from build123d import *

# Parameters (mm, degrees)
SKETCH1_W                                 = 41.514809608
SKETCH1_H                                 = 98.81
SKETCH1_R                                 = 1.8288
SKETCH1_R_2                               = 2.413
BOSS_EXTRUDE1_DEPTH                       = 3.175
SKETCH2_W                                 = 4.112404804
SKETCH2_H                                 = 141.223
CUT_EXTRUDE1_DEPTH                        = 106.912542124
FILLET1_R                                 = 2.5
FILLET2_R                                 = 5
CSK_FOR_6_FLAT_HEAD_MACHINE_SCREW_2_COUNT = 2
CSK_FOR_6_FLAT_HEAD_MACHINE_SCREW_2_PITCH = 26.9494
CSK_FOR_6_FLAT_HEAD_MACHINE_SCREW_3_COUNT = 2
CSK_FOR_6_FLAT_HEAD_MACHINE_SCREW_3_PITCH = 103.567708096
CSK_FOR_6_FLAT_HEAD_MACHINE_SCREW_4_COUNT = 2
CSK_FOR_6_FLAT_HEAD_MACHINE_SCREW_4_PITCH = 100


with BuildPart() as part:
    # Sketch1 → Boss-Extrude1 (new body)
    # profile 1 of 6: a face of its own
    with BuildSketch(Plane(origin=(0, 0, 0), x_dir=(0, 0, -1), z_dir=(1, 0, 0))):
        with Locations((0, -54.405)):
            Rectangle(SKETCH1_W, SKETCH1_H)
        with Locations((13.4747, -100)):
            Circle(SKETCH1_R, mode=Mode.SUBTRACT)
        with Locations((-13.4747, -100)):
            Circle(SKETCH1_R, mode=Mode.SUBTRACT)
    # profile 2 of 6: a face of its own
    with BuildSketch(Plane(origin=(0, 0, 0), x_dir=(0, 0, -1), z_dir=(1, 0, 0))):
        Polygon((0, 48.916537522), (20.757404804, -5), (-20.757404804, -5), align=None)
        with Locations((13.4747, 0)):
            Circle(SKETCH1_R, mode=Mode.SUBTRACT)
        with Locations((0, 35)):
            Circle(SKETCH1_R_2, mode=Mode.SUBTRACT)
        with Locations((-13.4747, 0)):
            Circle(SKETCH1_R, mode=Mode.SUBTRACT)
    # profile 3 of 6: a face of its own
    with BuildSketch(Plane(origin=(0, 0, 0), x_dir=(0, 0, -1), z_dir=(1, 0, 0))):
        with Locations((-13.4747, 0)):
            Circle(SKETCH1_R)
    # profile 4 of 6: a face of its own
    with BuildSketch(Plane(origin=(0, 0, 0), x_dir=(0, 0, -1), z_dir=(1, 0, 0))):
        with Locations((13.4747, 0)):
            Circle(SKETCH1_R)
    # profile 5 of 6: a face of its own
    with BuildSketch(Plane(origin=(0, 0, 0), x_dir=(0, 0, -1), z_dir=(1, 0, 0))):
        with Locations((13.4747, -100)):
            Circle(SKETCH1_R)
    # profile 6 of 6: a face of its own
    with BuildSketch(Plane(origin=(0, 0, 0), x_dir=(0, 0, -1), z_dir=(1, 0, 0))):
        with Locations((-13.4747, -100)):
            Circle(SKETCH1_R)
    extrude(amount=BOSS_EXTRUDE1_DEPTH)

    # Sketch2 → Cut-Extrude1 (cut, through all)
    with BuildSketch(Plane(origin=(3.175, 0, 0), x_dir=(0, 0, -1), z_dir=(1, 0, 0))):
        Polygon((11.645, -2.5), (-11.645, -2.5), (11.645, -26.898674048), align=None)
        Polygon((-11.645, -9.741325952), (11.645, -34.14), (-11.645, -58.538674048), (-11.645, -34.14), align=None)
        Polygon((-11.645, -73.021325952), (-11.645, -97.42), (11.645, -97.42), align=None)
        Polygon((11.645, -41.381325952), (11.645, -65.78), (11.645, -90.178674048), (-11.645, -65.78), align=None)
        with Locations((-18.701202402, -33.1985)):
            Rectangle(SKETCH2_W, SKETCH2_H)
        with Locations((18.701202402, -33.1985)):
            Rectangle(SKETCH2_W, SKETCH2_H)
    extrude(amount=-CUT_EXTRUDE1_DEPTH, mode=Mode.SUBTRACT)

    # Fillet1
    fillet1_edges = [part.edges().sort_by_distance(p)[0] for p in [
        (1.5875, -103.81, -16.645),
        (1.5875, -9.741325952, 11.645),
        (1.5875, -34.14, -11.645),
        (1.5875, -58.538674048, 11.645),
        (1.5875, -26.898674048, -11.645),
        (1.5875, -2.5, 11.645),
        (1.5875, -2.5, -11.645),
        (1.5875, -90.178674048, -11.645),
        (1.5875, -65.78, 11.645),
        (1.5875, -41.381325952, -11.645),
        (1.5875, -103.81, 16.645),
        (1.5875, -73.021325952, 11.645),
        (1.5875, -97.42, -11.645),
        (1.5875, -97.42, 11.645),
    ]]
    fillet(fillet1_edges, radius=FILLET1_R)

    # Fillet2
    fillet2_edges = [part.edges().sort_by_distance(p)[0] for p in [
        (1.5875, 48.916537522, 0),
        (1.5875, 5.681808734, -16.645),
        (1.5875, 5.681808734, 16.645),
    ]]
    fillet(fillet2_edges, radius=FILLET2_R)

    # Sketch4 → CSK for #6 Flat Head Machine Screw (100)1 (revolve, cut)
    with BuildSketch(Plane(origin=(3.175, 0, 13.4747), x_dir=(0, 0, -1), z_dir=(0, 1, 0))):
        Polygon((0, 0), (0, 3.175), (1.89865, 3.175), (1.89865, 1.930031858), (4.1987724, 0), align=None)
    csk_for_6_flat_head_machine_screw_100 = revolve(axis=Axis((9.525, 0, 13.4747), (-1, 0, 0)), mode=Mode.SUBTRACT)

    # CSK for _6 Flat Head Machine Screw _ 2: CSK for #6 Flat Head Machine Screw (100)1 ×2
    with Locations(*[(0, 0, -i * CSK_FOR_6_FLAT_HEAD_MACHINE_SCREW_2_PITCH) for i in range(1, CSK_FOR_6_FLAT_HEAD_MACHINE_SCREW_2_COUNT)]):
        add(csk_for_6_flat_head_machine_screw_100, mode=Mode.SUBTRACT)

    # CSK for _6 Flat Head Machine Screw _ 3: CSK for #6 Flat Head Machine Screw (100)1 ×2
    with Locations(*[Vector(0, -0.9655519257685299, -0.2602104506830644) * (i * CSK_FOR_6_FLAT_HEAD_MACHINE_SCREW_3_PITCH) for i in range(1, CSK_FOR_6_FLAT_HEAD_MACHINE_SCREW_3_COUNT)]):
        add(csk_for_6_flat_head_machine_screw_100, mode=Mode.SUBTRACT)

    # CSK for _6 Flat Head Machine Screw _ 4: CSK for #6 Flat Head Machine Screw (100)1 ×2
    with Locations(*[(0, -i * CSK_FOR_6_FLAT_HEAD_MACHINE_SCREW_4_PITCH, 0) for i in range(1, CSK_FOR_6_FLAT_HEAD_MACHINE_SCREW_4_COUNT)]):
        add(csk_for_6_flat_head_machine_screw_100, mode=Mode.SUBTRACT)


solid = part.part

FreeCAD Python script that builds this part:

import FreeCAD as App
import Part
import Sketcher

V = App.Vector
Q = App.Units.Quantity


def edges_at(feature, points):
    """Names of the edges that pass closest to the given points."""
    edges = feature.Shape.Edges
    near = lambda p: min(range(len(edges)), key=lambda i: edges[i].distToShape(Part.Vertex(*p))[0])
    return sorted({f"Edge{near(p) + 1}" for p in points})


def add_polygon(sketch, points):
    """Adds a closed chain of lines whose ends are joined by coincident constraints."""
    first, n = sketch.GeometryCount, len(points)
    for a, b in zip(points, points[1:] + points[:1]):
        sketch.addGeometry(Part.LineSegment(App.Vector(*a, 0), App.Vector(*b, 0)), False)
    for i in range(n):
        sketch.addConstraint(Sketcher.Constraint("Coincident", first + i, 2, first + (i + 1) % n, 1))

doc = App.newDocument("Part")
params = doc.addObject("Spreadsheet::Sheet", "Params")
for row, (alias, value) in enumerate([
    ("sketch1_width", "98.81 mm"),
    ("pad1_length", "3.175 mm"),
    ("sketch2_height", "23.29 mm"),
    ("fillet_radius", "2.5 mm"),
    ("fillet2_radius", "5 mm"),
    ("groove_angle", "360 deg"),
    ("linearpattern_pitch", "26.9494 mm"),
    ("linearpattern2_pitch", "103.567708 mm"),
    ("linearpattern3_pitch", "100 mm"),
], start=1):
    params.set(f"A{row}", alias)
    params.set(f"B{row}", "=" + value)
    params.setAlias(f"B{row}", alias)

body = doc.addObject("PartDesign::Body", "Body")

# Sketch on YZ plane
sketch1 = body.newObject("Sketcher::SketchObject", "Sketch")
sketch1.AttachmentSupport = (doc.getObject("YZ_Plane"), [""])
sketch1.MapMode = "FlatFace"
add_polygon(sketch1, [(-5, 20.757405), (-103.81, 20.757405), (-103.81, -20.757405), (-5, -20.757405), (48.916538, 0)])  # lines 0-4
sketch1.addGeometry(Part.Circle(V(35, 0, 0), V(0, 0, 1), 2.413), False)  # 5
sketch1.addConstraint([
    Sketcher.Constraint("Horizontal", 0),
    Sketcher.Constraint("Vertical", 1),
    Sketcher.Constraint("Horizontal", 2),
    Sketcher.Constraint("Symmetric", 2, 2, 4, 2, -1),
    Sketcher.Constraint("PointOnObject", 5, 3, -1),
    Sketcher.Constraint("PointOnObject", 3, 2, -1),
    Sketcher.Constraint("Diameter", 5, 4.826),
    Sketcher.Constraint("DistanceX", -1, 1, 5, 3, 35.0),
    Sketcher.Constraint("DistanceX", 2, 2, -1, 1, 5.0),
    Sketcher.Constraint("DistanceX", 0, 2, 0, 1, 98.81),
    Sketcher.Constraint("DistanceY", 1, 2, 1, 1, 41.51481),
    Sketcher.Constraint("Distance", 3, 57.774241),
])
sketch1.setExpression("Constraints[14]", "Params.sketch1_width")
pad1 = body.newObject("PartDesign::Pad", "Pad")
pad1.Profile = sketch1
pad1.setExpression("Length", "Params.pad1_length")

# Sketch on YZ plane
sketch2 = body.newObject("Sketcher::SketchObject", "Sketch001")
sketch2.AttachmentSupport = (doc.getObject("YZ_Plane"), [""])
sketch2.MapMode = "FlatFace"
sketch2.AttachmentOffset = App.Placement(V(0, 0, 3.175), App.Rotation())
add_polygon(sketch2, [(-2.5, -11.645), (-2.5, 11.645), (-26.898674, -11.645)])  # lines 0-2
add_polygon(sketch2, [(-34.14, -11.645), (-9.741326, 11.645), (-58.538674, 11.645)])  # lines 3-5
add_polygon(sketch2, [(-73.021326, 11.645), (-97.42, 11.645), (-97.42, -11.645)])  # lines 6-8
add_polygon(sketch2, [(-90.178674, -11.645), (-41.381326, -11.645), (-65.78, 11.645)])  # lines 9-11
add_polygon(sketch2, [(37.413, 20.757405), (-103.81, 20.757405), (-103.81, 16.645), (37.413, 16.645)])  # lines 12-15
add_polygon(sketch2, [(37.413, -16.645), (-103.81, -16.645), (-103.81, -20.757405), (37.413, -20.757405)])  # lines 16-19
sketch2.addConstraint([
    Sketcher.Constraint("Vertical", 0),
    Sketcher.Constraint("Horizontal", 2),
    Sketcher.Constraint("Horizontal", 4),
    Sketcher.Constraint("Horizontal", 6),
    Sketcher.Constraint("Vertical", 7),
    Sketcher.Constraint("Horizontal", 9),
    Sketcher.Constraint("Horizontal", 12),
    Sketcher.Constraint("Vertical", 13),
    Sketcher.Constraint("Horizontal", 14),
    Sketcher.Constraint("Vertical", 15),
    Sketcher.Constraint("Horizontal", 16),
    Sketcher.Constraint("Vertical", 17),
    Sketcher.Constraint("Horizontal", 18),
    Sketcher.Constraint("Vertical", 19),
    Sketcher.Constraint("Symmetric", 13, 2, 16, 2, -1),
    Sketcher.Constraint("Symmetric", 15, 2, 18, 2, -1),
    Sketcher.Constraint("Parallel", 1, 3),
    Sketcher.Constraint("Parallel", 3, 8),
    Sketcher.Constraint("Parallel", 5, 10),
    Sketcher.Constraint("Parallel", 8, 11),
    Sketcher.Constraint("Horizontal", 0, 2, 3, 2),
    Sketcher.Constraint("Horizontal", 2, 2, 5, 2),
    Sketcher.Constraint("Horizontal", 4, 2, 6, 2),
    Sketcher.Constraint("Horizontal", 5, 2, 7, 2),
    Sketcher.Constraint("Horizontal", 7, 2, 9, 2),
    Sketcher.Constraint("Horizontal", 8, 2, 10, 2),
    Sketcher.Constraint("Equal", 3, 5),
    Sketcher.Constraint("DistanceY", 6, 2, 13, 2, 5.0),
    Sketcher.Constraint("DistanceY", 16, 2, 7, 2, 5.0),
    Sketcher.Constraint("DistanceY", 0, 1, 0, 2, 23.29),
    Sketcher.Constraint("DistanceX", 0, 2, -1, 1, 2.5),
    Sketcher.Constraint("DistanceX", 12, 2, 12, 1, 141.223),
    Sketcher.Constraint("DistanceX", 5, 2, -1, 1, 34.14),
    Sketcher.Constraint("DistanceX", 6, 2, -1, 1, 97.42),
    Sketcher.Constraint("DistanceX", 10, 2, -1, 1, 65.78),
    Sketcher.Constraint("DistanceX", 12, 2, -1, 1, 103.81),
    Sketcher.Constraint("DistanceX", 4, 2, 4, 1, 48.797348),
    Sketcher.Constraint("DistanceY", 13, 2, 13, 1, 4.112405),
])
sketch2.setExpression("Constraints[49]", "Params.sketch2_height")
pocket1 = body.newObject("PartDesign::Pocket", "Pocket")
pocket1.Profile = sketch2
pocket1.Type = "ThroughAll"
doc.recompute()

fillet = body.newObject("PartDesign::Fillet", "Fillet")
fillet.Base = (pocket1, edges_at(pocket1, [
    (1.587, -103.81, -16.645),
    (1.587, -9.741, 11.645),
    (1.587, -34.14, -11.645),
    (1.587, -58.539, 11.645),
    (1.587, -26.899, -11.645),
    (1.587, -2.5, 11.645),
    (1.587, -2.5, -11.645),
    (1.587, -90.179, -11.645),
    (1.587, -65.78, 11.645),
    (1.587, -41.381, -11.645),
    (1.587, -103.81, 16.645),
    (1.587, -73.021, 11.645),
    (1.587, -97.42, -11.645),
    (1.587, -97.42, 11.645),
]))
fillet.setExpression("Radius", "Params.fillet_radius")
doc.recompute()

fillet2 = body.newObject("PartDesign::Fillet", "Fillet001")
fillet2.Base = (fillet, edges_at(fillet, [(1.587, 48.917, 0), (1.587, 5.682, -16.645), (1.587, 5.682, 16.645)]))
fillet2.setExpression("Radius", "Params.fillet2_radius")

# Sketch on XZ plane
sketch3 = body.newObject("Sketcher::SketchObject", "Sketch002")
sketch3.AttachmentSupport = (doc.getObject("XZ_Plane"), [""])
sketch3.MapMode = "FlatFace"
add_polygon(sketch3, [(0, 13.4747), (3.175, 13.4747), (3.175, 9.275928), (1.244968, 11.57605), (0, 11.57605)])  # lines 0-4
sketch3.addGeometry(Part.LineSegment(V(3.175, 13.4747, 0), V(0, 13.4747, 0)), True)  # axis
sketch3.addConstraint([
    Sketcher.Constraint("Horizontal", 0),
    Sketcher.Constraint("Vertical", 1),
    Sketcher.Constraint("Horizontal", 3),
    Sketcher.Constraint("Vertical", 4),
    Sketcher.Constraint("Horizontal", 5),
    Sketcher.Constraint("Coincident", 5, 1, 0, 2),
    Sketcher.Constraint("PointOnObject", 3, 2, -2),
    Sketcher.Constraint("PointOnObject", 5, 2, -2),
    Sketcher.Constraint("Angle", 2, Q("130 deg")),
    Sketcher.Constraint("DistanceX", 0, 1, 0, 2, 3.175),
    Sketcher.Constraint("DistanceX", 3, 2, 3, 1, 1.244968),
    Sketcher.Constraint("DistanceY", 4, 1, 4, 2, 1.89865),
    Sketcher.Constraint("DistanceY", -1, 1, 0, 2, 13.4747),
])
groove = body.newObject("PartDesign::Groove", "Groove")
groove.Profile = sketch3
groove.ReferenceAxis = (sketch3, ["Axis0"])
groove.setExpression("Angle", "Params.groove_angle")
doc.recompute()

linearpattern = body.newObject("PartDesign::LinearPattern", "LinearPattern")
linearpattern.Originals = [groove]
linearpattern.Direction = (doc.getObject("Z_Axis"), [""])
linearpattern.Mode = "offset"
linearpattern.setExpression("Offset", "Params.linearpattern_pitch")
linearpattern.Occurrences = 2
linearpattern.Reversed = True
body.Tip = linearpattern
doc.recompute()

datumline = body.newObject("PartDesign::Line", "DatumLine")
datumline.Placement = App.Placement(V(0, 0, 0), App.Rotation(V(0, 0, 1), V(0, -0.965551926, -0.260210451)))
linearpattern2 = body.newObject("PartDesign::LinearPattern", "LinearPattern001")
linearpattern2.Originals = [groove]
linearpattern2.Direction = (datumline, [""])
linearpattern2.Mode = "offset"
linearpattern2.setExpression("Offset", "Params.linearpattern2_pitch")
linearpattern2.Occurrences = 2
body.Tip = linearpattern2
doc.recompute()

linearpattern3 = body.newObject("PartDesign::LinearPattern", "LinearPattern002")
linearpattern3.Originals = [groove]
linearpattern3.Direction = (doc.getObject("Y_Axis"), [""])
linearpattern3.Mode = "offset"
linearpattern3.setExpression("Offset", "Params.linearpattern3_pitch")
linearpattern3.Occurrences = 2
linearpattern3.Reversed = True
body.Tip = linearpattern3

doc.recompute()
